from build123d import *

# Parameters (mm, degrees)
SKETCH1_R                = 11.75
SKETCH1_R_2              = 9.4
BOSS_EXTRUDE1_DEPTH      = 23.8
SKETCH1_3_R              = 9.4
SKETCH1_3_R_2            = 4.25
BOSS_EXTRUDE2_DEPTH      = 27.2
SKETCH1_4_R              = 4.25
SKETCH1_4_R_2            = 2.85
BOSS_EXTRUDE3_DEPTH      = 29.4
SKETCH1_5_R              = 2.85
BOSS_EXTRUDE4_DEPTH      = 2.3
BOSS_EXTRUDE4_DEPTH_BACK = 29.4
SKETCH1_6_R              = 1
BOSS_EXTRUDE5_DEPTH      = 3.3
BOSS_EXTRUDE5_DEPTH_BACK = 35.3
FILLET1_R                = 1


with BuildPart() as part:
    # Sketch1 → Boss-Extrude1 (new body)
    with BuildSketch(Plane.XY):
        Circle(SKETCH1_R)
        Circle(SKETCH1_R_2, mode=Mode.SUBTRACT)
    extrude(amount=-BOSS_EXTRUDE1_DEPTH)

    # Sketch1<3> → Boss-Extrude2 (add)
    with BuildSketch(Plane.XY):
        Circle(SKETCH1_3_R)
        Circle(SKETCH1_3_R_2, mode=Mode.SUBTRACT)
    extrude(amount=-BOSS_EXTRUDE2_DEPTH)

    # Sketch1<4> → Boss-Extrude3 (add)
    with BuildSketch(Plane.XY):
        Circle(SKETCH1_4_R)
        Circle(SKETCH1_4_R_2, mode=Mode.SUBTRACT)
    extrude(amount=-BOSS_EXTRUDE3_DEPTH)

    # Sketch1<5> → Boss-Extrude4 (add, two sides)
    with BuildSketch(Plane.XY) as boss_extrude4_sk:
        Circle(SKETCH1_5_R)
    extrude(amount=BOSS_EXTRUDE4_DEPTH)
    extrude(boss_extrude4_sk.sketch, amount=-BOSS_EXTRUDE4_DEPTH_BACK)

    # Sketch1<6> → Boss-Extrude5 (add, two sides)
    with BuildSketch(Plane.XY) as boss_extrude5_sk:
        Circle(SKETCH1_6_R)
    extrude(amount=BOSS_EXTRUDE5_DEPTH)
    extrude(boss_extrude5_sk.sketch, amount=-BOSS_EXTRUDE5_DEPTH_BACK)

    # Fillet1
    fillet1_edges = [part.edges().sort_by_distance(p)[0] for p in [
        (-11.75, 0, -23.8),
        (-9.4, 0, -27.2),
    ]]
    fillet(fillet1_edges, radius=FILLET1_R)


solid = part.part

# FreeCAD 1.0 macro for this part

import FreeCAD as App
import Part
import Sketcher
Q = App.Units.Quantity


def edges_at(feature, points):
    """Names of the edges that pass closest to the given points."""
    edges = feature.Shape.Edges
    near = lambda p: min(range(len(edges)), key=lambda i: edges[i].distToShape(Part.Vertex(*p))[0])
    return sorted({f"Edge{near(p) + 1}" for p in points})

doc = App.newDocument("Part")
params = doc.addObject("Spreadsheet::Sheet", "Params")
for row, (alias, value) in enumerate([
    ("sketch1_diameter", "23.5 mm"),
    ("sketch1_diameter2", "18.8 mm"),
    ("pad1_length", "23.8 mm"),
    ("sketch2_diameter", "18.8 mm"),
    ("sketch2_diameter2", "8.5 mm"),
    ("pad2_length", "27.2 mm"),
    ("sketch3_diameter", "8.5 mm"),
    ("sketch3_diameter2", "5.7 mm"),
    ("pad3_length", "29.4 mm"),
    ("sketch4_diameter", "5.7 mm"),
    ("pad4_length", "2.3 mm"),
    ("pad4_length2", "29.4 mm"),
    ("sketch5_diameter", "2 mm"),
    ("pad5_length", "3.3 mm"),
    ("pad5_length2", "35.3 mm"),
    ("fillet_radius", "1 mm"),
], start=1):
    params.set(f"A{row}", alias)
    params.set(f"B{row}", "=" + value)
    params.setAlias(f"B{row}", alias)

body = doc.addObject("PartDesign::Body", "Body")

sketch1 = body.newObject("Sketcher::SketchObject", "Sketch")
sketch1.AttachmentSupport = (doc.getObject("XY_Plane"), [""])
sketch1.MapMode = "FlatFace"
sketch1.addGeometry([
    Part.Circle(App.Vector(0, 0, 0), App.Vector(0, 0, 1), 12),
    Part.Circle(App.Vector(0, 0, 0), App.Vector(0, 0, 1), 9),
], False)
sketch1.addConstraint([
    Sketcher.Constraint("Coincident", 0, 3, -1, 1),
    Sketcher.Constraint("Coincident", 1, 3, -1, 1),
    Sketcher.Constraint("Diameter", 0, Q("23.5 mm")),
    Sketcher.Constraint("Diameter", 1, Q("18.8 mm")),
])
sketch1.setExpression("Constraints[2]", "Params.sketch1_diameter")
sketch1.setExpression("Constraints[3]", "Params.sketch1_diameter2")
pad1 = body.newObject("PartDesign::Pad", "Pad")
pad1.Profile = sketch1
pad1.setExpression("Length", "Params.pad1_length")
pad1.Reversed = True

sketch2 = body.newObject("Sketcher::SketchObject", "Sketch001")
sketch2.AttachmentSupport = (doc.getObject("XY_Plane"), [""])
sketch2.MapMode = "FlatFace"
sketch2.addGeometry([
    Part.Circle(App.Vector(0, 0, 0), App.Vector(0, 0, 1), 9.4),
    Part.Circle(App.Vector(0, 0, 0), App.Vector(0, 0, 1), 4.2),
], False)
sketch2.addConstraint([
    Sketcher.Constraint("Coincident", 0, 3, -1, 1),
    Sketcher.Constraint("Coincident", 1, 3, -1, 1),
    Sketcher.Constraint("Diameter", 0, Q("18.8 mm")),
    Sketcher.Constraint("Diameter", 1, Q("8.5 mm")),
])
sketch2.setExpression("Constraints[2]", "Params.sketch2_diameter")
sketch2.setExpression("Constraints[3]", "Params.sketch2_diameter2")
pad2 = body.newObject("PartDesign::Pad", "Pad001")
pad2.Profile = sketch2
pad2.setExpression("Length", "Params.pad2_length")
pad2.Reversed = True

sketch3 = body.newObject("Sketcher::SketchObject", "Sketch002")
sketch3.AttachmentSupport = (doc.getObject("XY_Plane"), [""])
sketch3.MapMode = "FlatFace"
sketch3.addGeometry([
    Part.Circle(App.Vector(0, 0, 0), App.Vector(0, 0, 1), 4.2),
    Part.Circle(App.Vector(0, 0, 0), App.Vector(0, 0, 1), 2.9),
], False)
sketch3.addConstraint([
    Sketcher.Constraint("Coincident", 0, 3, -1, 1),
    Sketcher.Constraint("Coincident", 1, 3, -1, 1),
    Sketcher.Constraint("Diameter", 0, Q("8.5 mm")),
    Sketcher.Constraint("Diameter", 1, Q("5.7 mm")),
])
sketch3.setExpression("Constraints[2]", "Params.sketch3_diameter")
sketch3.setExpression("Constraints[3]", "Params.sketch3_diameter2")
pad3 = body.newObject("PartDesign::Pad", "Pad002")
pad3.Profile = sketch3
pad3.setExpression("Length", "Params.pad3_length")
pad3.Reversed = True

sketch4 = body.newObject("Sketcher::SketchObject", "Sketch003")
sketch4.AttachmentSupport = (doc.getObject("XY_Plane"), [""])
sketch4.MapMode = "FlatFace"
sketch4.addGeometry(Part.Circle(App.Vector(0, 0, 0), App.Vector(0, 0, 1), 2.9), False)
sketch4.addConstraint([
    Sketcher.Constraint("Coincident", 0, 3, -1, 1),
    Sketcher.Constraint("Diameter", 0, Q("5.7 mm")),
])
sketch4.setExpression("Constraints[1]", "Params.sketch4_diameter")
pad4 = body.newObject("PartDesign::Pad", "Pad003")
pad4.Profile = sketch4
pad4.Type = "TwoLengths"
pad4.setExpression("Length", "Params.pad4_length")
pad4.setExpression("Length2", "Params.pad4_length2")

sketch5 = body.newObject("Sketcher::SketchObject", "Sketch004")
sketch5.AttachmentSupport = (doc.getObject("XY_Plane"), [""])
sketch5.MapMode = "FlatFace"
sketch5.addGeometry(Part.Circle(App.Vector(0, 0, 0), App.Vector(0, 0, 1), 1), False)
sketch5.addConstraint([
    Sketcher.Constraint("Coincident", 0, 3, -1, 1),
    Sketcher.Constraint("Diameter", 0, Q("2 mm")),
])
sketch5.setExpression("Constraints[1]", "Params.sketch5_diameter")
pad5 = body.newObject("PartDesign::Pad", "Pad004")
pad5.Profile = sketch5
pad5.Type = "TwoLengths"
pad5.setExpression("Length", "Params.pad5_length")
pad5.setExpression("Length2", "Params.pad5_length2")
doc.recompute()

fillet = body.newObject("PartDesign::Fillet", "Fillet")
fillet.Base = (pad5, edges_at(pad5, [(-11.75, 0, -23.8), (-9.4, 0, -27.2)]))
fillet.setExpression("Radius", "Params.fillet_radius")

doc.recompute()
